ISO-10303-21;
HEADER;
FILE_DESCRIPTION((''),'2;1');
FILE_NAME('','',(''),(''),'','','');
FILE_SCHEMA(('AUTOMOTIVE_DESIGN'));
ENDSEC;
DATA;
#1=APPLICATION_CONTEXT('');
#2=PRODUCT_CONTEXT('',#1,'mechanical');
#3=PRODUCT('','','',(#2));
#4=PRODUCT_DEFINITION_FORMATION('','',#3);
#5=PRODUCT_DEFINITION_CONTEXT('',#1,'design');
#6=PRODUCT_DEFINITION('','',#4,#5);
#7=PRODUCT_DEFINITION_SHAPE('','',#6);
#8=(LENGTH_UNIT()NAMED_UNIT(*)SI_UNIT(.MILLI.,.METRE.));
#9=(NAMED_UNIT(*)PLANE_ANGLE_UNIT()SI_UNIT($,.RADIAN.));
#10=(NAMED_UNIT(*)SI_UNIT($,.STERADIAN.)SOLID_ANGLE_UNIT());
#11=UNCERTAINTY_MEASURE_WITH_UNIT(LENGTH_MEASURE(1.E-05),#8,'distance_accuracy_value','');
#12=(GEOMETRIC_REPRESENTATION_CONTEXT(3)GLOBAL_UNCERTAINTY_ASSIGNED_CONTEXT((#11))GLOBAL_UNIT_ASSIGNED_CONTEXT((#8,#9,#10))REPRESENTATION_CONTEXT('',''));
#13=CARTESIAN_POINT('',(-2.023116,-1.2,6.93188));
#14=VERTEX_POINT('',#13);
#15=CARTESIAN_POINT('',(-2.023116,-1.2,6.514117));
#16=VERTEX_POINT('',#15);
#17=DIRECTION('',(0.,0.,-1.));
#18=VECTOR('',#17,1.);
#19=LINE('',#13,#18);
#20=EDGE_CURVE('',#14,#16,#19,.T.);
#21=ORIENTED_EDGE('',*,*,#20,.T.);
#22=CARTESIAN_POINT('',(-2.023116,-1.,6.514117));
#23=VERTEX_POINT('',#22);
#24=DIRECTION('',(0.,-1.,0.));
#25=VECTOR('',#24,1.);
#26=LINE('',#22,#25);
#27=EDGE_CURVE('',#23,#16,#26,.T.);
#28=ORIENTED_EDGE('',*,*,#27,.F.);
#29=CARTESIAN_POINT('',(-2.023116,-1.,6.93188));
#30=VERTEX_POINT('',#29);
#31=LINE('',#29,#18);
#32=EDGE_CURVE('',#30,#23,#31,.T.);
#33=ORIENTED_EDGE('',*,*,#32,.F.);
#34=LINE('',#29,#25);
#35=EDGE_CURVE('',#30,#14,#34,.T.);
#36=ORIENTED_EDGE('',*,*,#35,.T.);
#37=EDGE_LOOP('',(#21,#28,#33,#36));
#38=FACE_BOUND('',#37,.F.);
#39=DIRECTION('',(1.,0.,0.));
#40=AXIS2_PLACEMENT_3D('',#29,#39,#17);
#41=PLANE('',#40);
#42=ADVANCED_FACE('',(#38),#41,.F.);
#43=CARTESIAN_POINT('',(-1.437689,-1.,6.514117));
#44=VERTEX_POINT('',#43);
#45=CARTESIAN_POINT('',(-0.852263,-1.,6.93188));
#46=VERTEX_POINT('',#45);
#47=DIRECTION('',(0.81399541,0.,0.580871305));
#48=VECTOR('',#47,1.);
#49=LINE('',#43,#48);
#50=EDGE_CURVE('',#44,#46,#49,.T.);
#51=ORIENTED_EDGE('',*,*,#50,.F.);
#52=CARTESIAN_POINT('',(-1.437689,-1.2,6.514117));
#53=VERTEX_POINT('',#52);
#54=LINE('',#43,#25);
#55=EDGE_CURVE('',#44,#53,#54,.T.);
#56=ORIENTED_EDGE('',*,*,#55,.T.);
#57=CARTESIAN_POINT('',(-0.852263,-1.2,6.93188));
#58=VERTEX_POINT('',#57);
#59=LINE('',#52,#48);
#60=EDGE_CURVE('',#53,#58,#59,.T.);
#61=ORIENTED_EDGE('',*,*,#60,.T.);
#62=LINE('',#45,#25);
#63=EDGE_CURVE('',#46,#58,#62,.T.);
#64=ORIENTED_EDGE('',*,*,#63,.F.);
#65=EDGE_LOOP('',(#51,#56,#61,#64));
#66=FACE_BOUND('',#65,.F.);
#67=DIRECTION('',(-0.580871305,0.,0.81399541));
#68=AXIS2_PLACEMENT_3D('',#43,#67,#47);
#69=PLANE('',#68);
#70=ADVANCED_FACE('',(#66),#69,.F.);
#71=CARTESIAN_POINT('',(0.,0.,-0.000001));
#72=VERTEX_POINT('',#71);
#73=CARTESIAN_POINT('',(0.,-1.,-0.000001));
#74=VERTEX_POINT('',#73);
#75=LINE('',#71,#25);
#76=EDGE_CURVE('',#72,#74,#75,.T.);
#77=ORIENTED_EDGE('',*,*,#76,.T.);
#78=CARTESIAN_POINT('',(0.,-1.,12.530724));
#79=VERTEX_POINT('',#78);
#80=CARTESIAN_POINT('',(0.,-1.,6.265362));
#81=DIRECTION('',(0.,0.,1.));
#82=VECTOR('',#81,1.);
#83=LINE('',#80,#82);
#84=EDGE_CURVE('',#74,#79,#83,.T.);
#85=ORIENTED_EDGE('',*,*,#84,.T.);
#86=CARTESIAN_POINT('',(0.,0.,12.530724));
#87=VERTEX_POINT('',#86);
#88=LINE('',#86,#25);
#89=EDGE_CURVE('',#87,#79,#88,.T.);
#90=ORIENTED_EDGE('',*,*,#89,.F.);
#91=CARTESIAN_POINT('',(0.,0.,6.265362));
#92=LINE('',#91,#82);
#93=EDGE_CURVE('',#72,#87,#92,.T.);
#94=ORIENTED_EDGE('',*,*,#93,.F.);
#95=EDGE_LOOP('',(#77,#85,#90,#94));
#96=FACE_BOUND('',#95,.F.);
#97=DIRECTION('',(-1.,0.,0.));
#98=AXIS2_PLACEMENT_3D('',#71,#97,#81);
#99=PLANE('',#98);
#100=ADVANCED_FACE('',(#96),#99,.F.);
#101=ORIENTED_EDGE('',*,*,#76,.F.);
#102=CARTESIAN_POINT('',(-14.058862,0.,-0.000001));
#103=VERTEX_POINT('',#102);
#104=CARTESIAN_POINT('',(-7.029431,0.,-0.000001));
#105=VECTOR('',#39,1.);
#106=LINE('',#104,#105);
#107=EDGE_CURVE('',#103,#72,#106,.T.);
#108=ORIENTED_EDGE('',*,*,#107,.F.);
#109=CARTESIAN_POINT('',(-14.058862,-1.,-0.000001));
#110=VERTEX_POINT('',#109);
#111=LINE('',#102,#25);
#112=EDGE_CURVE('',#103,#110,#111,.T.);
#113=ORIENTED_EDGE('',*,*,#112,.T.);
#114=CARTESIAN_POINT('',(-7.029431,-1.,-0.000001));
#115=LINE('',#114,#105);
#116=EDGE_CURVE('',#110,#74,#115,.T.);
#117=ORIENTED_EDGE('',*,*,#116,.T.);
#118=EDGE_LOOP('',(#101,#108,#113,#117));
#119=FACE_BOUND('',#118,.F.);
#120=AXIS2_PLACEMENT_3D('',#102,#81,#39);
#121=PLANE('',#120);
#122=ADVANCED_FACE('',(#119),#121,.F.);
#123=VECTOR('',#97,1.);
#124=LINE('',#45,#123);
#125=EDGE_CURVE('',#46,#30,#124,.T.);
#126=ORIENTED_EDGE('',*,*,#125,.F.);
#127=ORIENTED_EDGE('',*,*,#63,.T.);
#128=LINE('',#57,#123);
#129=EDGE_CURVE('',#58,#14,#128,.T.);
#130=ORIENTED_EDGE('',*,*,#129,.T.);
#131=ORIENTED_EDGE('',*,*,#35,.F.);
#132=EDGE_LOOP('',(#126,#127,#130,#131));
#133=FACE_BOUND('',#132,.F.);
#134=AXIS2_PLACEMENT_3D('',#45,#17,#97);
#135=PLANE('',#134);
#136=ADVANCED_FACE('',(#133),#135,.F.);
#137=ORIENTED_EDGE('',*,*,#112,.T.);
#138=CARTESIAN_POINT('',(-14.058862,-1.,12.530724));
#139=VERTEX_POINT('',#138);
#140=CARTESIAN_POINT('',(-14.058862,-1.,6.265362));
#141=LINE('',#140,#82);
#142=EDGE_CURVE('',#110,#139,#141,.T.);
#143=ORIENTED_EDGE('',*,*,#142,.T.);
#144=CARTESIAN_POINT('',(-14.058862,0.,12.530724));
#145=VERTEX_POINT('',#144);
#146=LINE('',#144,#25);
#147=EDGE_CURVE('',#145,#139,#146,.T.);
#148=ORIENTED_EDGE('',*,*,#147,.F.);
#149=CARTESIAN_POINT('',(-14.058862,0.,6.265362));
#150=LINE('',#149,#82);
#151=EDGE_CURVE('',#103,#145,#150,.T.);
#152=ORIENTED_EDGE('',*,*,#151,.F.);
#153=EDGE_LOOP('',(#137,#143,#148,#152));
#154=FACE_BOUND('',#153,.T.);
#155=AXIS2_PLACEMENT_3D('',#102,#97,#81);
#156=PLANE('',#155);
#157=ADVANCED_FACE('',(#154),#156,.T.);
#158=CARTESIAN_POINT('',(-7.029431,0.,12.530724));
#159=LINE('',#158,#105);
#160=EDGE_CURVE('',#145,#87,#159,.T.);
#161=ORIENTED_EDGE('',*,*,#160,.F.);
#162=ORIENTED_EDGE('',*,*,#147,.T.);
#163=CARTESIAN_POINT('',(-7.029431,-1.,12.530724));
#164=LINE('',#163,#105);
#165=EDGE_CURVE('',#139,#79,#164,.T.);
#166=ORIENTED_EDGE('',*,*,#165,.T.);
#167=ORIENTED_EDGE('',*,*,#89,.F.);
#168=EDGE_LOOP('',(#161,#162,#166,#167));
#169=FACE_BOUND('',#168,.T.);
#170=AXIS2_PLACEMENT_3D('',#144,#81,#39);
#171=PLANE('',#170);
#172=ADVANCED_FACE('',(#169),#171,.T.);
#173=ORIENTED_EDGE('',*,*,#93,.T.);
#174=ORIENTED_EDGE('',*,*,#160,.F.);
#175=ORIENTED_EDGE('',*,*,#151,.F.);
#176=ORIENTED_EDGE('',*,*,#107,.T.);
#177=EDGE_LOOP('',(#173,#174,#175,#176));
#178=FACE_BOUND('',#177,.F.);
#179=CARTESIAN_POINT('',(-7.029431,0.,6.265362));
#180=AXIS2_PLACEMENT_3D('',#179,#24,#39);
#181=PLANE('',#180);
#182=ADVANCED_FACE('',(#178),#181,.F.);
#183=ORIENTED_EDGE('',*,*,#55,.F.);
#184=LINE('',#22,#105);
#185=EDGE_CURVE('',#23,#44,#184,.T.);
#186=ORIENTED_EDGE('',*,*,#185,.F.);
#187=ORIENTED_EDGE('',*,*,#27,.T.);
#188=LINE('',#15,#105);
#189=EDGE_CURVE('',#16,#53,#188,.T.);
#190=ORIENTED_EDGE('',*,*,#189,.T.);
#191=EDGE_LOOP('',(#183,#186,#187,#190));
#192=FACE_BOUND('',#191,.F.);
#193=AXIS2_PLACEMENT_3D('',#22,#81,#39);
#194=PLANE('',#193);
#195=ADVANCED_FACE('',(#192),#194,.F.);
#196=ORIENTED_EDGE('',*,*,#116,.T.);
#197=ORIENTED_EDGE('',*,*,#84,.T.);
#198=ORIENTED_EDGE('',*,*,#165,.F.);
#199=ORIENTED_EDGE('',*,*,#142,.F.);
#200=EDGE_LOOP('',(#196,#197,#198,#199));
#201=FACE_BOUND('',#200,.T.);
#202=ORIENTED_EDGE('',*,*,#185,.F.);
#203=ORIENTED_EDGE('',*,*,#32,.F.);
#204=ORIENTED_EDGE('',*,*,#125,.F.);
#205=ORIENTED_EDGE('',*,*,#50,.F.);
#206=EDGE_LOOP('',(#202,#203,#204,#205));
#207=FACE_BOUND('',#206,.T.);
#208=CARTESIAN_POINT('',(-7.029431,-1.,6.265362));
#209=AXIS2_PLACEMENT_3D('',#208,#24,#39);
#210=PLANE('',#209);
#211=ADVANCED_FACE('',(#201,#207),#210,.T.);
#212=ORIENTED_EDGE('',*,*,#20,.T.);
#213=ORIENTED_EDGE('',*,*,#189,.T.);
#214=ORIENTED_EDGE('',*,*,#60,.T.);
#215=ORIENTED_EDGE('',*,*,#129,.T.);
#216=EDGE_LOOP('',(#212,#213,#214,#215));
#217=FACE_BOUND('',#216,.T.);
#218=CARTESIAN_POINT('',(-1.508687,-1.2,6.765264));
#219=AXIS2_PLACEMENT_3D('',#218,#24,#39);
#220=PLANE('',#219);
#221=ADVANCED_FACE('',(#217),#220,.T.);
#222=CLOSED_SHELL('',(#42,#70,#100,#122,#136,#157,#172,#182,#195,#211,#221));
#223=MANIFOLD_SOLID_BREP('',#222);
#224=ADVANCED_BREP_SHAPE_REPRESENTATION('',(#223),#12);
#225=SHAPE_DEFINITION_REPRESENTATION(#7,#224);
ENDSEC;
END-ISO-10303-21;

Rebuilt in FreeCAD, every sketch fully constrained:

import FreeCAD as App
import Part
import Sketcher

V = App.Vector
Q = App.Units.Quantity

doc = App.newDocument("Part")
body = doc.addObject("PartDesign::Body", "Body")

# Sketch on XZ plane
sketch1 = body.newObject("Sketcher::SketchObject", "Sketch")
sketch1.AttachmentSupport = (doc.getObject("XZ_Plane"), [""])
sketch1.MapMode = "FlatFace"
sketch1.addGeometry([
    Part.LineSegment(V(-14, 13, 0), V(-14, 0, 0)),
    Part.LineSegment(V(-14, 0, 0), V(0, 0, 0)),
    Part.LineSegment(V(0, 0, 0), V(0, 13, 0)),
    Part.LineSegment(V(0, 13, 0), V(-14, 13, 0)),
], False)
sketch1.addConstraint([
    Sketcher.Constraint("Coincident", 0, 2, 1, 1),
    Sketcher.Constraint("Coincident", 1, 2, 2, 1),
    Sketcher.Constraint("Coincident", 2, 2, 3, 1),
    Sketcher.Constraint("Coincident", 3, 2, 0, 1),
    Sketcher.Constraint("Vertical", 0),
    Sketcher.Constraint("Horizontal", 1),
    Sketcher.Constraint("Vertical", 2),
    Sketcher.Constraint("Horizontal", 3),
    Sketcher.Constraint("Coincident", 1, 2, -1, 1),
    Sketcher.Constraint("DistanceX", 1, 1, 1, 2, Q("14.058862 mm")),
    Sketcher.Constraint("DistanceY", 0, 2, 0, 1, Q("12.530725 mm")),
])
pad1 = body.newObject("PartDesign::Pad", "Pad")
pad1.Profile = sketch1
pad1.Length = 1

# Sketch on XZ plane
sketch2 = body.newObject("Sketcher::SketchObject", "Sketch001")
sketch2.AttachmentSupport = (doc.getObject("XZ_Plane"), [""])
sketch2.MapMode = "FlatFace"
sketch2.AttachmentOffset = App.Placement(V(0, 0, 1), App.Rotation())
sketch2.addGeometry([
    Part.LineSegment(V(-1.44, 6.51, 0), V(-0.85, 6.93, 0)),
    Part.LineSegment(V(-0.85, 6.93, 0), V(-2.02, 6.93, 0)),
    Part.LineSegment(V(-2.02, 6.93, 0), V(-2.02, 6.51, 0)),
    Part.LineSegment(V(-2.02, 6.51, 0), V(-1.44, 6.51, 0)),
], False)
sketch2.addConstraint([
    Sketcher.Constraint("Coincident", 0, 2, 1, 1),
    Sketcher.Constraint("Coincident", 1, 2, 2, 1),
    Sketcher.Constraint("Coincident", 2, 2, 3, 1),
    Sketcher.Constraint("Coincident", 3, 2, 0, 1),
    Sketcher.Constraint("Horizontal", 1),
    Sketcher.Constraint("Vertical", 2),
    Sketcher.Constraint("Horizontal", 3),
    Sketcher.Constraint("Distance", 0, Q("0.719201 mm")),
    Sketcher.Constraint("DistanceX", 1, 2, 1, 1, Q("1.170853 mm")),
    Sketcher.Constraint("DistanceX", 3, 1, 3, 2, Q("0.585427 mm")),
    Sketcher.Constraint("DistanceY", -1, 1, 0, 2, Q("6.93188 mm")),
    Sketcher.Constraint("DistanceX", 3, 2, -1, 1, Q("1.437689 mm")),
])
pad2 = body.newObject("PartDesign::Pad", "Pad001")
pad2.Profile = sketch2
pad2.Length = 0.2

doc.recompute()
